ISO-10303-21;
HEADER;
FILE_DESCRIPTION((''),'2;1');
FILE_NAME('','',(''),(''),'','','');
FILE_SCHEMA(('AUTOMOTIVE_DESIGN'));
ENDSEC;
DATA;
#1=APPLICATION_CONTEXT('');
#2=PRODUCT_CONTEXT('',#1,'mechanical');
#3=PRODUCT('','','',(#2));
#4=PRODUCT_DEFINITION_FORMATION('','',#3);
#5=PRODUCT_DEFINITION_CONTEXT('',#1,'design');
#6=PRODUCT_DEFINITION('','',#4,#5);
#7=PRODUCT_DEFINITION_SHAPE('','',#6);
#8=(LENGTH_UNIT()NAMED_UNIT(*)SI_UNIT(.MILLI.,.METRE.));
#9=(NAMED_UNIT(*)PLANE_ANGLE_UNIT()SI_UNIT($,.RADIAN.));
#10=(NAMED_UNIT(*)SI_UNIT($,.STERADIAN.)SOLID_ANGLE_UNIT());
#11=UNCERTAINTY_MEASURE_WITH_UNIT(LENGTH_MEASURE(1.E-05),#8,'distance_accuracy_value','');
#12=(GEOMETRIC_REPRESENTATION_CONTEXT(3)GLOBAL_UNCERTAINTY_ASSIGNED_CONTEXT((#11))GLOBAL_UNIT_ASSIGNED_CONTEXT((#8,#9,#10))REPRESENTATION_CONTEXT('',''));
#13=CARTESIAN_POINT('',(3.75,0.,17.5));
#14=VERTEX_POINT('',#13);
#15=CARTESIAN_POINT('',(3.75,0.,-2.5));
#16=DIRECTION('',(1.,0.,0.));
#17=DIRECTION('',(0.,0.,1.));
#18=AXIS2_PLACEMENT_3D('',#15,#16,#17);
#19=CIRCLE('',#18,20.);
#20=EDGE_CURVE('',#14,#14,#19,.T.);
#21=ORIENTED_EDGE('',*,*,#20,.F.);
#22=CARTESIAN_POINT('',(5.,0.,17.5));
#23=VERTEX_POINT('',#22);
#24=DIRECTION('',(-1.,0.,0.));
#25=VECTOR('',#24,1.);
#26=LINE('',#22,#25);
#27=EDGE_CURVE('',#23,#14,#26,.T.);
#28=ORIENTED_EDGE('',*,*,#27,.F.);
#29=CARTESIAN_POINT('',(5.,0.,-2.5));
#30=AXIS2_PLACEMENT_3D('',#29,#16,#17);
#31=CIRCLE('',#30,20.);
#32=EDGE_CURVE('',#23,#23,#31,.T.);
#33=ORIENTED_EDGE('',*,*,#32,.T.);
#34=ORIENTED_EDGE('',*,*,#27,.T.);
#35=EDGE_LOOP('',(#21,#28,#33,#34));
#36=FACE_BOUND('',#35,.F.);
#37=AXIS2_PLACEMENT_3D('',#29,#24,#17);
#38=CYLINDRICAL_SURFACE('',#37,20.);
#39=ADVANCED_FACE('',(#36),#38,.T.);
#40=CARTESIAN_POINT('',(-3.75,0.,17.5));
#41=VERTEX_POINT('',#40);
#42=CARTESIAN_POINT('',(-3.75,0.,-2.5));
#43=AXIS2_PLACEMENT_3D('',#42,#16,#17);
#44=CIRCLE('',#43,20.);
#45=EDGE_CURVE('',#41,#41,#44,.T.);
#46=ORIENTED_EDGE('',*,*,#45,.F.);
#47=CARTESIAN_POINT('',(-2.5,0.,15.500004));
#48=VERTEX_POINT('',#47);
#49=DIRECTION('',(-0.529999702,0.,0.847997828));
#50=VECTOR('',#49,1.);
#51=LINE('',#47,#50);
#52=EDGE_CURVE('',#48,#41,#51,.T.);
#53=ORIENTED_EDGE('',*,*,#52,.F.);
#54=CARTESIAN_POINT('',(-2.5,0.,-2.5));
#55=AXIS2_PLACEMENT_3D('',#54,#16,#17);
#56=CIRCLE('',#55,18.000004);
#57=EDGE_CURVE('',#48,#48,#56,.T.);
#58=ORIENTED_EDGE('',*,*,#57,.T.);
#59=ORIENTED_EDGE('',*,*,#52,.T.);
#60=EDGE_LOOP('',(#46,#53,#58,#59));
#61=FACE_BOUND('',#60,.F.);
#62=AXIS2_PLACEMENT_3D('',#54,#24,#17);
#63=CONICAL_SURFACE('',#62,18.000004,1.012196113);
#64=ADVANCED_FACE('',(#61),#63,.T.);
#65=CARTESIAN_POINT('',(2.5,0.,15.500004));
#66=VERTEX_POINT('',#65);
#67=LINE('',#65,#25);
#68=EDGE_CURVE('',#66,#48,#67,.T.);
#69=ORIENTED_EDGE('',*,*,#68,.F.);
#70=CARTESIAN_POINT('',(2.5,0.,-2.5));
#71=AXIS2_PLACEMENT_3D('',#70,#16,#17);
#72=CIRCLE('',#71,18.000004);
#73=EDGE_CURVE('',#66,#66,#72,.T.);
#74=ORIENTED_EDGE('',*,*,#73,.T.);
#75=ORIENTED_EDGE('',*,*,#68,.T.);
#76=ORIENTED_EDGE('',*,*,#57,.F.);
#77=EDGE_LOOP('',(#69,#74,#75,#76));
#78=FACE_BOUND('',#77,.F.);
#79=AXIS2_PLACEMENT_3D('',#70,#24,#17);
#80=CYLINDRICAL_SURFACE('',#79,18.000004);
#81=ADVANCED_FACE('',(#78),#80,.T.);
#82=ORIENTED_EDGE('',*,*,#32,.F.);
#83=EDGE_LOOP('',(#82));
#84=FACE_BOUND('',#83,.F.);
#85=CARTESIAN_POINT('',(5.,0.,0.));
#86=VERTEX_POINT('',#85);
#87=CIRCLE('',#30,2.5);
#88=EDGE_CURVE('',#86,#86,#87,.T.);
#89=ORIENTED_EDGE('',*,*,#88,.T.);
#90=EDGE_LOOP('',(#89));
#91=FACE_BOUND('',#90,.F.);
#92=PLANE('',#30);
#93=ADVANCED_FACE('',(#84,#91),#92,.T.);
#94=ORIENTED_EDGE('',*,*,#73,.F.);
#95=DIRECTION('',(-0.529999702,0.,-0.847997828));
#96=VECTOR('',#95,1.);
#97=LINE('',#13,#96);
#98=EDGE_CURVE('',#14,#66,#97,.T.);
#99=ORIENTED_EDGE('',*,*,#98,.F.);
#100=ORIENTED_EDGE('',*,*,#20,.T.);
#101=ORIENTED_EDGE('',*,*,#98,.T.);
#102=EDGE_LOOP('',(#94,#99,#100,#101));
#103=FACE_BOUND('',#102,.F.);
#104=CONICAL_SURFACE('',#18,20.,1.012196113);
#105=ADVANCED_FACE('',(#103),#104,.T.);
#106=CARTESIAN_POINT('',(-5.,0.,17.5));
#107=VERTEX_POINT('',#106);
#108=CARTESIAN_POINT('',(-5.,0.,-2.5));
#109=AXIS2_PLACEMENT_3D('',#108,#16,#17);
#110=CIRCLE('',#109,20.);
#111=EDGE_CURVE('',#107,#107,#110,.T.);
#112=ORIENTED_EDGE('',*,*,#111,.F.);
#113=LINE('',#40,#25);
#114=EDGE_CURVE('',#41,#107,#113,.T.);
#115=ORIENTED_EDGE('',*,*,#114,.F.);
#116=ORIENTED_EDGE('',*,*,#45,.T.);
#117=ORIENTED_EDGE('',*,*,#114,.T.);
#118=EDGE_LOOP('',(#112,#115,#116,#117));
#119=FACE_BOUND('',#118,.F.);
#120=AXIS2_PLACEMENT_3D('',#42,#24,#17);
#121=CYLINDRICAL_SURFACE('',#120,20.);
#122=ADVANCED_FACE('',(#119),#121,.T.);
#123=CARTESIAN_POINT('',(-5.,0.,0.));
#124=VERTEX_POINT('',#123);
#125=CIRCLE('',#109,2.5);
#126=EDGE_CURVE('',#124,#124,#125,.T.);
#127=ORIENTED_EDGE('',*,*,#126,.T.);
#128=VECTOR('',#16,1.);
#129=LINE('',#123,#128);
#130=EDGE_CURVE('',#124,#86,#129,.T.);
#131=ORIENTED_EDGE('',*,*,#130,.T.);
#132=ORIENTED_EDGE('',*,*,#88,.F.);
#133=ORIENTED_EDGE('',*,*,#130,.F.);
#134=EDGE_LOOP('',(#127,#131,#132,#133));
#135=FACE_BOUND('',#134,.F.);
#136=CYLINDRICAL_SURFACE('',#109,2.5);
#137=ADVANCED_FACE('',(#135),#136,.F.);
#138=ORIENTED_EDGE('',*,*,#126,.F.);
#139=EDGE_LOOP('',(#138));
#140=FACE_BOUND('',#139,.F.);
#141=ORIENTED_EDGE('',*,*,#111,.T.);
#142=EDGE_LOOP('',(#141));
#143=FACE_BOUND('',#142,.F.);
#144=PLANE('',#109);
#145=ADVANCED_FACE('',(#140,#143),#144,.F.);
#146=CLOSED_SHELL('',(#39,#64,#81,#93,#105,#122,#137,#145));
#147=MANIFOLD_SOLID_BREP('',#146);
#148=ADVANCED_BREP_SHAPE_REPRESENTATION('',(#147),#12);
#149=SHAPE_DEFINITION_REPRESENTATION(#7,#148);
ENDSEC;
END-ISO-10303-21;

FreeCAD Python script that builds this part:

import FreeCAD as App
import Part
import Sketcher
from FreeCAD import Vector
Q = App.Units.Quantity


def add_polygon(sketch, points):
    """Adds a closed chain of lines whose ends are joined by coincident constraints."""
    first, n = sketch.GeometryCount, len(points)
    for a, b in zip(points, points[1:] + points[:1]):
        sketch.addGeometry(Part.LineSegment(App.Vector(*a, 0), App.Vector(*b, 0)), False)
    for i in range(n):
        sketch.addConstraint(Sketcher.Constraint("Coincident", first + i, 2, first + (i + 1) % n, 1))

doc = App.newDocument("Part")
body = doc.addObject("PartDesign::Body", "Body")

# Sketch on XZ plane
sketch1 = doc.addObject("Sketcher::SketchObject", "Sketch")
body.addObject(sketch1)
sketch1.AttachmentSupport = (doc.XZ_Plane, [""])
sketch1.MapMode = "FlatFace"
add_polygon(sketch1, [(-5, 0), (5, 0), (5, 17.5), (3.8, 17.5), (2.5, 15.5), (-2.5, 15.5), (-3.8, 17.5), (-5, 17.5)])  # lines 0-7
sketch1.addGeometry(Part.LineSegment(Vector(-5, -2.5, 0), Vector(5, -2.5, 0)), True)  # axis
sketch1.addConstraint([
    Sketcher.Constraint("Horizontal", 0),
    Sketcher.Constraint("Vertical", 1),
    Sketcher.Constraint("Horizontal", 2),
    Sketcher.Constraint("Horizontal", 4),
    Sketcher.Constraint("Horizontal", 6),
    Sketcher.Constraint("Vertical", 7),
    Sketcher.Constraint("Horizontal", 8),
    Sketcher.Constraint("Symmetric", 0, 2, 7, 2, -1, 1),
    Sketcher.Constraint("Symmetric", 2, 2, 5, 2, -2),
    Sketcher.Constraint("Vertical", 7, 2, 8, 1),
    Sketcher.Constraint("Vertical", 1, 2, 8, 2),
    Sketcher.Constraint("Equal", 3, 5),
    Sketcher.Constraint("DistanceX", 0, 1, 0, 2, Q("10 mm")),
    Sketcher.Constraint("DistanceX", 4, 2, 4, 1, Q("5 mm")),
    Sketcher.Constraint("DistanceY", 1, 1, 1, 2, Q("17.5 mm")),
    Sketcher.Constraint("DistanceY", 8, 1, 6, 2, Q("20 mm")),
    Sketcher.Constraint("DistanceX", 2, 2, 2, 1, Q("1.25 mm")),
    Sketcher.Constraint("Distance", 3, Q("2.358492 mm")),
])
revolution = doc.addObject("PartDesign::Revolution", "Revolution")
body.addObject(revolution)
revolution.Profile = sketch1
revolution.ReferenceAxis = (sketch1, ["Axis0"])
revolution.Angle = 360

doc.recompute()
